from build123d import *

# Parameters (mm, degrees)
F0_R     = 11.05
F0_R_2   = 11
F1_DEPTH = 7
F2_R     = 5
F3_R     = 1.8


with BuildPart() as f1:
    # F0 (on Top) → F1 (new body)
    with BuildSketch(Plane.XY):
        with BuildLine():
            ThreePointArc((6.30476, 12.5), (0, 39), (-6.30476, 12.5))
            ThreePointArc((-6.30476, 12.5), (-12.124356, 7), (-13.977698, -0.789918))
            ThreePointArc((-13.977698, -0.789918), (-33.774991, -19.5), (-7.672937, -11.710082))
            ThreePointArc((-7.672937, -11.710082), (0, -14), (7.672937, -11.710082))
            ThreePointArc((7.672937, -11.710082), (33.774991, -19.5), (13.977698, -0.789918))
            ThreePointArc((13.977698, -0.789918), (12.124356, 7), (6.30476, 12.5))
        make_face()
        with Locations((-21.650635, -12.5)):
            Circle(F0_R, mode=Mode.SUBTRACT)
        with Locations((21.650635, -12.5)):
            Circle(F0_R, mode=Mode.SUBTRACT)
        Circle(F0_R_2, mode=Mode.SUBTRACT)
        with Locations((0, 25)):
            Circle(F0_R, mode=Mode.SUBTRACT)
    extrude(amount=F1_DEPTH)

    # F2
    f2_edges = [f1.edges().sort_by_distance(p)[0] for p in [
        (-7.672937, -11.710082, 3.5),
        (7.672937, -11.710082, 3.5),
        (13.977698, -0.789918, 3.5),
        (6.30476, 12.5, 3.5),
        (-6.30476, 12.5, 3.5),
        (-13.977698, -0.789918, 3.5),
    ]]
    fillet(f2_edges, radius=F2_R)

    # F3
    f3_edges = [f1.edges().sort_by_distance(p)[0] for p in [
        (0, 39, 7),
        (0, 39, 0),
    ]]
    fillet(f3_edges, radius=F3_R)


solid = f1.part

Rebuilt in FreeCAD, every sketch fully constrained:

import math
import FreeCAD as App
import Part
import Sketcher

V = App.Vector
Q = App.Units.Quantity


def edges_at(feature, points):
    """Names of the edges that pass closest to the given points."""
    edges = feature.Shape.Edges
    near = lambda p: min(range(len(edges)), key=lambda i: edges[i].distToShape(Part.Vertex(*p))[0])
    return sorted({f"Edge{near(p) + 1}" for p in points})

doc = App.newDocument("Part")
body = doc.addObject("PartDesign::Body", "Body")

sketch1 = body.newObject("Sketcher::SketchObject", "Sketch")
sketch1.AttachmentSupport = (doc.getObject("XY_Plane"), [""])
sketch1.MapMode = "FlatFace"
sketch1.addGeometry(Part.ArcOfCircle(Part.Circle(V(0, 25, 0), V(0, 0, 1), 14), math.radians(-63.2345), math.radians(243.2345)), False)
sketch1.addGeometry(Part.ArcOfCircle(Part.Circle(V(-0.000001, 0, 0), V(0, 0, 1), 14), math.radians(116.765497), math.radians(183.234501)), False)
sketch1.addGeometry(Part.ArcOfCircle(Part.Circle(V(-21.650635, -12.500001, 0), V(0, 0, 1), 14), math.radians(56.765505), math.radians(363.234506)), False)
sketch1.addGeometry(Part.ArcOfCircle(Part.Circle(V(0, -0.000004, 0), V(0, 0, 1), 13.999996), math.radians(-123.234507), math.radians(-56.765493)), False)
sketch1.addGeometry(Part.ArcOfCircle(Part.Circle(V(21.650635, -12.500001, 0), V(0, 0, 1), 14), math.radians(176.765494), math.radians(483.234495)), False)
sketch1.addGeometry(Part.ArcOfCircle(Part.Circle(V(0.000001, 0, 0), V(0, 0, 1), 14), math.radians(-3.234501), math.radians(63.234503)), False)
sketch1.addGeometry(Part.Circle(V(-21.650635, -12.5, 0), V(0, 0, 1), 11.05), False)
sketch1.addGeometry(Part.Circle(V(21.650635, -12.5, 0), V(0, 0, 1), 11.05), False)
sketch1.addGeometry(Part.Circle(V(0, 0, 0), V(0, 0, 1), 11), False)
sketch1.addGeometry(Part.Circle(V(0, 25, 0), V(0, 0, 1), 11.05), False)
sketch1.addConstraint(Sketcher.Constraint("Coincident", 0, 2, 1, 1))
sketch1.addConstraint(Sketcher.Constraint("Coincident", 1, 2, 2, 1))
sketch1.addConstraint(Sketcher.Constraint("Coincident", 2, 2, 3, 1))
sketch1.addConstraint(Sketcher.Constraint("Coincident", 3, 2, 4, 1))
sketch1.addConstraint(Sketcher.Constraint("Coincident", 4, 2, 5, 1))
sketch1.addConstraint(Sketcher.Constraint("Coincident", 5, 2, 0, 1))
sketch1.addConstraint(Sketcher.Constraint("Coincident", 1, 3, -1, 1))
sketch1.addConstraint(Sketcher.Constraint("Coincident", 3, 3, -1, 1))
sketch1.addConstraint(Sketcher.Constraint("Coincident", 5, 3, -1, 1))
sketch1.addConstraint(Sketcher.Constraint("Coincident", 8, 3, -1, 1))
sketch1.addConstraint(Sketcher.Constraint("Coincident", 6, 3, 2, 3))
sketch1.addConstraint(Sketcher.Constraint("Coincident", 7, 3, 4, 3))
sketch1.addConstraint(Sketcher.Constraint("Coincident", 9, 3, 0, 3))
sketch1.addConstraint(Sketcher.Constraint("Equal", 0, 1))
sketch1.addConstraint(Sketcher.Constraint("Equal", 1, 2))
sketch1.addConstraint(Sketcher.Constraint("Equal", 2, 4))
sketch1.addConstraint(Sketcher.Constraint("Equal", 4, 5))
sketch1.addConstraint(Sketcher.Constraint("Equal", 6, 7))
sketch1.addConstraint(Sketcher.Constraint("Equal", 7, 9))
sketch1.addConstraint(Sketcher.Constraint("Symmetric", 2, 3, 4, 3, -2))
sketch1.addConstraint(Sketcher.Constraint("PointOnObject", 0, 3, -2))
sketch1.addConstraint(Sketcher.Constraint("Diameter", 8, Q("22 mm")))
sketch1.addConstraint(Sketcher.Constraint("Radius", 0, Q("14 mm")))
sketch1.addConstraint(Sketcher.Constraint("Diameter", 6, Q("22.1 mm")))
sketch1.addConstraint(Sketcher.Constraint("DistanceY", -1, 1, 0, 3, Q("25 mm")))
sketch1.addConstraint(Sketcher.Constraint("DistanceY", 2, 3, -1, 1, Q("12.500001 mm")))
sketch1.addConstraint(Sketcher.Constraint("Radius", 3, Q("13.999996 mm")))
sketch1.addConstraint(Sketcher.Constraint("DistanceX", 1, 2, -1, 1, Q("13.977698 mm")))
pad1 = body.newObject("PartDesign::Pad", "Pad")
pad1.Profile = sketch1
pad1.Length = 7
doc.recompute()

fillet = body.newObject("PartDesign::Fillet", "Fillet")
fillet.Base = (pad1, edges_at(pad1, [
    (-7.673, -11.71, 3.5),
    (7.673, -11.71, 3.5),
    (13.978, -0.79, 3.5),
    (6.305, 12.5, 3.5),
    (-6.305, 12.5, 3.5),
    (-13.978, -0.79, 3.5),
]))
fillet.Radius = 5
doc.recompute()

fillet2 = body.newObject("PartDesign::Fillet", "Fillet001")
fillet2.Base = (fillet, edges_at(fillet, [(0, 39, 7), (0, 39, 0)]))
fillet2.Radius = 1.8

doc.recompute()
